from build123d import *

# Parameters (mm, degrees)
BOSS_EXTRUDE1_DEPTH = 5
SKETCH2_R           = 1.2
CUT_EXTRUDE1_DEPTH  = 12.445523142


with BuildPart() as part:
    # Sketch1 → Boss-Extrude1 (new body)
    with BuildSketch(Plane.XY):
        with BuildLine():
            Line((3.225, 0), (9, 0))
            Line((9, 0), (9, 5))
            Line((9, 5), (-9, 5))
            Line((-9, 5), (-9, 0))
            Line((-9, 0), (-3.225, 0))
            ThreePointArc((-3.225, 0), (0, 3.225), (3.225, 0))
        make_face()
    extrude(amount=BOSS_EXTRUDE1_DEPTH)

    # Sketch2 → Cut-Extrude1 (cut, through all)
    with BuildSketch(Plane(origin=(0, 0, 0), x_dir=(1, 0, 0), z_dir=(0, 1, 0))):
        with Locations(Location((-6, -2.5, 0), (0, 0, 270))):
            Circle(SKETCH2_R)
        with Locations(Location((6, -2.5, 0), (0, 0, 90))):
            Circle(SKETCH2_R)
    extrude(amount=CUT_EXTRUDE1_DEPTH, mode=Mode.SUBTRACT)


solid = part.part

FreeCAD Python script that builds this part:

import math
import FreeCAD as App
import Part
import Sketcher
from FreeCAD import Vector

doc = App.newDocument("Part")
params = doc.addObject("Spreadsheet::Sheet", "Params")
for row, (alias, value) in enumerate([
    ("sketch1_width", "18 mm"),
    ("sketch1_height", "5 mm"),
    ("pad1_length", "5 mm"),
    ("sketch2_diameter", "2.4 mm"),
], start=1):
    params.set(f"A{row}", alias)
    params.set(f"B{row}", "=" + value)
    params.setAlias(f"B{row}", alias)

body = doc.addObject("PartDesign::Body", "Body")

sketch1 = body.newObject("Sketcher::SketchObject", "Sketch")
sketch1.AttachmentSupport = (doc.getObject("XY_Plane"), [""])
sketch1.MapMode = "FlatFace"
sketch1.addGeometry(Part.LineSegment(Vector(3.2, 0, 0), Vector(9, 0, 0)), False)
sketch1.addGeometry(Part.LineSegment(Vector(9, 0, 0), Vector(9, 5, 0)), False)
sketch1.addGeometry(Part.LineSegment(Vector(9, 5, 0), Vector(-9, 5, 0)), False)
sketch1.addGeometry(Part.LineSegment(Vector(-9, 5, 0), Vector(-9, 0, 0)), False)
sketch1.addGeometry(Part.LineSegment(Vector(-9, 0, 0), Vector(-3.2, 0, 0)), False)
sketch1.addGeometry(Part.ArcOfCircle(Part.Circle(Vector(0, 0, 0), Vector(0, 0, 1), 3.2), math.radians(0), math.radians(180)), False)
sketch1.addConstraint(Sketcher.Constraint("Coincident", 0, 2, 1, 1))
sketch1.addConstraint(Sketcher.Constraint("Coincident", 1, 2, 2, 1))
sketch1.addConstraint(Sketcher.Constraint("Coincident", 2, 2, 3, 1))
sketch1.addConstraint(Sketcher.Constraint("Coincident", 3, 2, 4, 1))
sketch1.addConstraint(Sketcher.Constraint("Coincident", 4, 2, 5, 2))
sketch1.addConstraint(Sketcher.Constraint("Coincident", 5, 1, 0, 1))
sketch1.addConstraint(Sketcher.Constraint("Horizontal", 0))
sketch1.addConstraint(Sketcher.Constraint("Vertical", 1))
sketch1.addConstraint(Sketcher.Constraint("Horizontal", 2))
sketch1.addConstraint(Sketcher.Constraint("Vertical", 3))
sketch1.addConstraint(Sketcher.Constraint("Horizontal", 4))
sketch1.addConstraint(Sketcher.Constraint("Coincident", 5, 3, -1, 1))
sketch1.addConstraint(Sketcher.Constraint("Symmetric", 0, 2, 3, 2, -1, 1))
sketch1.addConstraint(Sketcher.Constraint("PointOnObject", 0, 2, -1))
sketch1.addConstraint(Sketcher.Constraint("DistanceX", 2, 2, 2, 1, 18.0))
sketch1.addConstraint(Sketcher.Constraint("DistanceY", 1, 1, 1, 2, 5.0))
sketch1.addConstraint(Sketcher.Constraint("Radius", 5, 3.225))
sketch1.setExpression("Constraints[14]", "Params.sketch1_width")
sketch1.setExpression("Constraints[15]", "Params.sketch1_height")
pad1 = body.newObject("PartDesign::Pad", "Pad")
pad1.Profile = sketch1
pad1.setExpression("Length", "Params.pad1_length")

sketch2 = body.newObject("Sketcher::SketchObject", "Sketch001")
sketch2.AttachmentSupport = (doc.getObject("XZ_Plane"), [""])
sketch2.MapMode = "FlatFace"
sketch2.addGeometry(Part.Circle(Vector(-6, 2.5, 0), Vector(0, 0, 1), 1.2), False)
sketch2.addGeometry(Part.Circle(Vector(6, 2.5, 0), Vector(0, 0, 1), 1.2), False)
sketch2.addConstraint(Sketcher.Constraint("Equal", 0, 1))
sketch2.addConstraint(Sketcher.Constraint("Symmetric", 0, 3, 1, 3, -2))
sketch2.addConstraint(Sketcher.Constraint("Diameter", 0, 2.4))
sketch2.addConstraint(Sketcher.Constraint("DistanceX", 0, 3, -1, 1, 6.0))
sketch2.addConstraint(Sketcher.Constraint("DistanceY", -1, 1, 0, 3, 2.5))
sketch2.setExpression("Constraints[2]", "Params.sketch2_diameter")
pocket1 = body.newObject("PartDesign::Pocket", "Pocket")
pocket1.Profile = sketch2
pocket1.Type = "ThroughAll"

doc.recompute()
